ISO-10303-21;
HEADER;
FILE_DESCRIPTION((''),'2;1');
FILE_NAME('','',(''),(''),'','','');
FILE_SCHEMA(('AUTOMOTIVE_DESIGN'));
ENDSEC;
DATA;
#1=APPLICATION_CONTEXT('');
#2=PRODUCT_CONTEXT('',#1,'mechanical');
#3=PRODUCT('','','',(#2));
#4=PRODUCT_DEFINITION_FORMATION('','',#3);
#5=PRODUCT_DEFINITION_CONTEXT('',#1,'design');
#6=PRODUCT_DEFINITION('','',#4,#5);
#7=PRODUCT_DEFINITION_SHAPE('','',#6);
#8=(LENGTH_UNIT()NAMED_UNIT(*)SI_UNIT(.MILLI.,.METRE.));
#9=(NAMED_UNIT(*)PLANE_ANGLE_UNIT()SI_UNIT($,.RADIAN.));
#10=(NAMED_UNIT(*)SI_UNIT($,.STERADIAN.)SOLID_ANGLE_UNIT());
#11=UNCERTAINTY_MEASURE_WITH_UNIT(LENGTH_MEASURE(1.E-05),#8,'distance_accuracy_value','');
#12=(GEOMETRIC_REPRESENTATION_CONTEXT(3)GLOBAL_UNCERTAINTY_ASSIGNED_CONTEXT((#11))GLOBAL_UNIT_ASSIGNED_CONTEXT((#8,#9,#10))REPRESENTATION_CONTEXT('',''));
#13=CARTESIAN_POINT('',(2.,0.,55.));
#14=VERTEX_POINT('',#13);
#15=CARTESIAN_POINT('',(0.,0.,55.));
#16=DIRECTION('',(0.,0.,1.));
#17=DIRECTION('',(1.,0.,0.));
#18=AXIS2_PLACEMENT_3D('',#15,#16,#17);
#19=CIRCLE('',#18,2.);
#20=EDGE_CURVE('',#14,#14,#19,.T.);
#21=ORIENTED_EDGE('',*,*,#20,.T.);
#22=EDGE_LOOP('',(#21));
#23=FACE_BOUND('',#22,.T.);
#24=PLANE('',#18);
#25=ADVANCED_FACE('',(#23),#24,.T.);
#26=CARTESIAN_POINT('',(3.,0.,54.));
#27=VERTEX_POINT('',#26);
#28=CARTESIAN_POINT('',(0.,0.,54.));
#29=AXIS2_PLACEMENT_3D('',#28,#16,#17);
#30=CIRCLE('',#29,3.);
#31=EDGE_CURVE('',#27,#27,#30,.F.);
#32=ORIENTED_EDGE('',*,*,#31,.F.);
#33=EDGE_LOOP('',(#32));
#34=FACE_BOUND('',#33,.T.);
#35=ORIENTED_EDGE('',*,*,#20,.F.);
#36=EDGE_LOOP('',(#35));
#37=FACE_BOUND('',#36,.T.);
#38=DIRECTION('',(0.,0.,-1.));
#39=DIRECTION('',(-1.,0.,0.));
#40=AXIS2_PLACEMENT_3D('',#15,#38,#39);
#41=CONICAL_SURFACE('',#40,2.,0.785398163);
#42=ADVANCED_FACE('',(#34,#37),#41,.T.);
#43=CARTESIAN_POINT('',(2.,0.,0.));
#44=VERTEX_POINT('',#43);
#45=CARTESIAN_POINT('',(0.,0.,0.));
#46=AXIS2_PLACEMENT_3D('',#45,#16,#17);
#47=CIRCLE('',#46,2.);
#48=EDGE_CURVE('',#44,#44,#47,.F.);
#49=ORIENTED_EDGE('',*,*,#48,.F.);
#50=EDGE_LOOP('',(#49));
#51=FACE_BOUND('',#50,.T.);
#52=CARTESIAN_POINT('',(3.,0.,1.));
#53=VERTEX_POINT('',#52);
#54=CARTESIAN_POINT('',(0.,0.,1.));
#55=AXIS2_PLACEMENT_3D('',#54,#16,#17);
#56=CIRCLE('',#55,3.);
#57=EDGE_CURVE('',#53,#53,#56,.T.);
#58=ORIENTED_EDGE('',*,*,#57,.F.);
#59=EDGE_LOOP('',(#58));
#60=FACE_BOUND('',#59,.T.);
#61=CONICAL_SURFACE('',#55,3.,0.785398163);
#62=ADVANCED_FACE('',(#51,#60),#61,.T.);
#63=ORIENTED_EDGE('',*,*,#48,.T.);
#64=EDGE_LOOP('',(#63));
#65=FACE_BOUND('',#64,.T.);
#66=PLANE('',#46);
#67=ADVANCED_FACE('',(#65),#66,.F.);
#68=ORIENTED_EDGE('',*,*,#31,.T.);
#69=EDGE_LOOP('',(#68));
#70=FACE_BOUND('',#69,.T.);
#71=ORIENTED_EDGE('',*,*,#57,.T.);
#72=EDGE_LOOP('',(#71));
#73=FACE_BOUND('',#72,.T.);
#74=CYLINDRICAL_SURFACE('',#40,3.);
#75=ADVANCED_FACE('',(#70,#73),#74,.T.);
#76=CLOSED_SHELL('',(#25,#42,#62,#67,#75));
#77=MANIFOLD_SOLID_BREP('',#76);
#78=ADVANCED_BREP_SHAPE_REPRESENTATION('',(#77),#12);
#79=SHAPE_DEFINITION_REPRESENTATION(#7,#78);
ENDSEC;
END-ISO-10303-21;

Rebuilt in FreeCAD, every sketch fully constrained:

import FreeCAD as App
import Part
import Sketcher
Q = App.Units.Quantity


def edges_at(feature, points):
    """Names of the edges that pass closest to the given points."""
    edges = feature.Shape.Edges
    near = lambda p: min(range(len(edges)), key=lambda i: edges[i].distToShape(Part.Vertex(*p))[0])
    return sorted({f"Edge{near(p) + 1}" for p in points})

doc = App.newDocument("Part")
params = doc.addObject("Spreadsheet::Sheet", "Params")
for row, (alias, value) in enumerate([
    ("sketch1_diameter", "6 mm"),
    ("pad1_length", "55 mm"),
    ("chamfer_size", "1 mm"),
], start=1):
    params.set(f"A{row}", alias)
    params.set(f"B{row}", "=" + value)
    params.setAlias(f"B{row}", alias)

body = doc.addObject("PartDesign::Body", "Body")

sketch1 = doc.addObject("Sketcher::SketchObject", "Sketch")
body.addObject(sketch1)
sketch1.AttachmentSupport = (doc.XY_Plane, [""])
sketch1.MapMode = "FlatFace"
sketch1.addGeometry(Part.Circle(App.Vector(0, 0, 0), App.Vector(0, 0, 1), 3), False)
sketch1.addConstraint(Sketcher.Constraint("Coincident", 0, 3, -1, 1))
sketch1.addConstraint(Sketcher.Constraint("Diameter", 0, Q("6 mm")))
sketch1.setExpression("Constraints[1]", "Params.sketch1_diameter")
pad1 = doc.addObject("PartDesign::Pad", "Pad")
body.addObject(pad1)
pad1.Profile = sketch1
pad1.setExpression("Length", "Params.pad1_length")
doc.recompute()

chamfer = doc.addObject("PartDesign::Chamfer", "Chamfer")
body.addObject(chamfer)
chamfer.Base = (pad1, edges_at(pad1, [(-3, 0, 0), (-3, 0, 55)]))
chamfer.setExpression("Size", "Params.chamfer_size")

doc.recompute()
